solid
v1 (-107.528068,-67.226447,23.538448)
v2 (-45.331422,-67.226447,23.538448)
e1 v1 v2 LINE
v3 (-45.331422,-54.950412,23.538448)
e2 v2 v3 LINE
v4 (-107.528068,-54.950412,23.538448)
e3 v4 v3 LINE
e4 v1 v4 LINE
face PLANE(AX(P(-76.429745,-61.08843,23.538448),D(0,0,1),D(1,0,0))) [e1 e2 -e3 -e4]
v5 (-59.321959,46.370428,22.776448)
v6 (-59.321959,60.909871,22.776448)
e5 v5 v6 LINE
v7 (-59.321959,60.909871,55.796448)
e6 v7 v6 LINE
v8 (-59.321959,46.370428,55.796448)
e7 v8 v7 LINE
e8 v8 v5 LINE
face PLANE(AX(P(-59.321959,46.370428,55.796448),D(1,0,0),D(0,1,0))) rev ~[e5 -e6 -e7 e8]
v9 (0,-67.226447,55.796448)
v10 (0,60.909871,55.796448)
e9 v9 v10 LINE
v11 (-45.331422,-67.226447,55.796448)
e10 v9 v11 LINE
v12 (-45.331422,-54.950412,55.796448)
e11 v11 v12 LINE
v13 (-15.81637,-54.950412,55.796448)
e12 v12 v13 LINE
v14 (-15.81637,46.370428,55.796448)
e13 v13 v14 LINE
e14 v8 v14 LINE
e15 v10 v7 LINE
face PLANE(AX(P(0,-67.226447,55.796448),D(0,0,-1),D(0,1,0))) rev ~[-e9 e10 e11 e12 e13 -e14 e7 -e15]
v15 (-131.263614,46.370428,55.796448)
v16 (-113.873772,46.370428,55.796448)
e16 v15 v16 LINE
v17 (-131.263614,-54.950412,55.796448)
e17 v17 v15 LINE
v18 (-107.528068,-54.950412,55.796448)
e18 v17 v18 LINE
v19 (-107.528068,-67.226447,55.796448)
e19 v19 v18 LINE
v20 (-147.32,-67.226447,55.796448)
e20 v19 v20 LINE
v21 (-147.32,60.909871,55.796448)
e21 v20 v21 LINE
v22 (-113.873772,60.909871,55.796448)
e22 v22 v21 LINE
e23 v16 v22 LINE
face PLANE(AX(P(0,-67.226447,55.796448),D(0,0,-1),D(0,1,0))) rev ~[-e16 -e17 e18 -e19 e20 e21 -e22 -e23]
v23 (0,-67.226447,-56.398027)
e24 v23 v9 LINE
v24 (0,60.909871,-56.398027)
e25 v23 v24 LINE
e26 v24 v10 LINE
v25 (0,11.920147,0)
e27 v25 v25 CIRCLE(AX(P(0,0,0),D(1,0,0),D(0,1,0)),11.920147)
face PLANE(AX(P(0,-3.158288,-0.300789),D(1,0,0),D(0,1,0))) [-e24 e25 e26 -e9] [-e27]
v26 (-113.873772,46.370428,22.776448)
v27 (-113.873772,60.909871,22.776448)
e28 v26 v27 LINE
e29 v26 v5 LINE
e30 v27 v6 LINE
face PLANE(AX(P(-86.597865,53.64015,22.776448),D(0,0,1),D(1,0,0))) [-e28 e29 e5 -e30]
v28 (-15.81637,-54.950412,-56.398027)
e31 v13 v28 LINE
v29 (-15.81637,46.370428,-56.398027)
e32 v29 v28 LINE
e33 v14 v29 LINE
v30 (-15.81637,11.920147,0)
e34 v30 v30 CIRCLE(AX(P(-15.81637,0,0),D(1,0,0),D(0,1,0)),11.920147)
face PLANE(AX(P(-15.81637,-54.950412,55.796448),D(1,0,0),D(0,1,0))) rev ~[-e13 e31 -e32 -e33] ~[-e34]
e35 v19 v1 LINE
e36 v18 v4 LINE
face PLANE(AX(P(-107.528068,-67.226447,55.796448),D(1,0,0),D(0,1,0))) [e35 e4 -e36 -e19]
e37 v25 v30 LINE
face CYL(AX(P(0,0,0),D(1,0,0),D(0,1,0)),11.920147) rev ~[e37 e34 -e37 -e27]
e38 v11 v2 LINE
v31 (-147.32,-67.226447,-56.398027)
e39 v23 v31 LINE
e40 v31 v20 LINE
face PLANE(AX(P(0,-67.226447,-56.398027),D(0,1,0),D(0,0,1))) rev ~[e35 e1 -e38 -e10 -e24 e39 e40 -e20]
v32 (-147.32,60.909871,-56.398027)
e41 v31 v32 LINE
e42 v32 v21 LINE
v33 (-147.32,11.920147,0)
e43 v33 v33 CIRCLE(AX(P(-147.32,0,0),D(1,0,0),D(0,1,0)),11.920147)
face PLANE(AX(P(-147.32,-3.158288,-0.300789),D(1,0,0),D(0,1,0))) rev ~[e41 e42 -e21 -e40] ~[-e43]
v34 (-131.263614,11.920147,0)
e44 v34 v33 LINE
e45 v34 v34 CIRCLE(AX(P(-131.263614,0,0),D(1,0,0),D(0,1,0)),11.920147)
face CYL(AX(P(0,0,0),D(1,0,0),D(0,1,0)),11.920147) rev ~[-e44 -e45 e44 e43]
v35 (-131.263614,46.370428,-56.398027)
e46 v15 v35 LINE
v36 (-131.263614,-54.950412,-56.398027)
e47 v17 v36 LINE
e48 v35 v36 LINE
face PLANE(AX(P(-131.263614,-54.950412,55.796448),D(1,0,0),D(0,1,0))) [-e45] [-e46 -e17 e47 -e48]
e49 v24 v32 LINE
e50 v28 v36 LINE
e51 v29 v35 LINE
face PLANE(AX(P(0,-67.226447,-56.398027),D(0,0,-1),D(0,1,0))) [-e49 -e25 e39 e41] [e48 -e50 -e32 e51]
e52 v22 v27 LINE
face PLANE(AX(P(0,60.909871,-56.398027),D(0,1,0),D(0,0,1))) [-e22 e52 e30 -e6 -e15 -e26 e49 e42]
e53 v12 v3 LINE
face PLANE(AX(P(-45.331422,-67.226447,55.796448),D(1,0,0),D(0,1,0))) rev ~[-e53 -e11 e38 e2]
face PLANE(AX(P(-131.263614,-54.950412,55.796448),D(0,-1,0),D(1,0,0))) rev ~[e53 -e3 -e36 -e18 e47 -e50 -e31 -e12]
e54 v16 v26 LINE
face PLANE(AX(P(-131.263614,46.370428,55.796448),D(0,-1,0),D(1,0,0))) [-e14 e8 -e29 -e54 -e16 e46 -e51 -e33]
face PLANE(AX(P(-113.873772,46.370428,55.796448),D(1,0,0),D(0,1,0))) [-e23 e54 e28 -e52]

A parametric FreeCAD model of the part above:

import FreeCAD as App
import Part
import Sketcher
from FreeCAD import Vector
Q = App.Units.Quantity


def add_polygon(sketch, points):
    """Adds a closed chain of lines whose ends are joined by coincident constraints."""
    first, n = sketch.GeometryCount, len(points)
    for a, b in zip(points, points[1:] + points[:1]):
        sketch.addGeometry(Part.LineSegment(App.Vector(*a, 0), App.Vector(*b, 0)), False)
    for i in range(n):
        sketch.addConstraint(Sketcher.Constraint("Coincident", first + i, 2, first + (i + 1) % n, 1))

doc = App.newDocument("Part")
body = doc.addObject("PartDesign::Body", "Body")

# Sketch on YZ plane
sketch1 = body.newObject("Sketcher::SketchObject", "Sketch")
sketch1.AttachmentSupport = (doc.getObject("YZ_Plane"), [""])
sketch1.MapMode = "FlatFace"
add_polygon(sketch1, [(-67, 56), (-67, -56), (61, -56), (61, 56)])  # lines 0-3
sketch1.addGeometry(Part.Circle(Vector(0, 0, 0), Vector(0, 0, 1), 12), False)  # 4
sketch1.addConstraint([
    Sketcher.Constraint("Vertical", 0),
    Sketcher.Constraint("Horizontal", 1),
    Sketcher.Constraint("Vertical", 2),
    Sketcher.Constraint("Horizontal", 3),
    Sketcher.Constraint("Coincident", 4, 3, -1, 1),
    Sketcher.Constraint("Diameter", 4, 23.840293),
    Sketcher.Constraint("DistanceX", 1, 1, 1, 2, 128.136318),
    Sketcher.Constraint("DistanceY", 0, 2, 0, 1, 112.194475),
    Sketcher.Constraint("DistanceX", -1, 1, 1, 2, 60.909871),
    Sketcher.Constraint("DistanceY", -1, 1, 2, 2, 55.796448),
])
pad1 = body.newObject("PartDesign::Pad", "Pad")
pad1.Profile = sketch1
pad1.Length = Q("5.8 in")
pad1.Reversed = True

# Sketch on XY plane
sketch2 = body.newObject("Sketcher::SketchObject", "Sketch001")
sketch2.AttachmentSupport = (doc.getObject("XY_Plane"), [""])
sketch2.MapMode = "FlatFace"
sketch2.AttachmentOffset = App.Placement(Vector(0, 0, 55.796448), App.Rotation())
add_polygon(sketch2, [(-131, 46), (-131, -55), (-16, -55), (-16, 46)])  # lines 0-3
sketch2.addConstraint([
    Sketcher.Constraint("Vertical", 0),
    Sketcher.Constraint("Horizontal", 1),
    Sketcher.Constraint("Vertical", 2),
    Sketcher.Constraint("Horizontal", 3),
    Sketcher.Constraint("DistanceY", 0, 2, 0, 1, 101.32084),
    Sketcher.Constraint("DistanceX", 1, 1, 1, 2, 115.447244),
    Sketcher.Constraint("DistanceX", 1, 2, -1, 1, 15.81637),
    Sketcher.Constraint("DistanceY", -1, 1, 2, 2, 46.370428),
])
pocket1 = body.newObject("PartDesign::Pocket", "Pocket")
pocket1.Profile = sketch2
pocket1.Type = "ThroughAll"

# Sketch on XY plane
sketch3 = body.newObject("Sketcher::SketchObject", "Sketch002")
sketch3.AttachmentSupport = (doc.getObject("XY_Plane"), [""])
sketch3.MapMode = "FlatFace"
sketch3.AttachmentOffset = App.Placement(Vector(0, 0, 55.796448), App.Rotation())
add_polygon(sketch3, [(-108, -55), (-108, -67), (-45, -67), (-45, -55)])  # lines 0-3
sketch3.addConstraint([
    Sketcher.Constraint("Vertical", 0),
    Sketcher.Constraint("Horizontal", 1),
    Sketcher.Constraint("Vertical", 2),
    Sketcher.Constraint("Horizontal", 3),
    Sketcher.Constraint("DistanceX", 1, 1, 1, 2, 62.196646),
    Sketcher.Constraint("DistanceY", 0, 2, 0, 1, 12.276035),
    Sketcher.Constraint("DistanceX", 0, 2, -1, 1, 107.528068),
    Sketcher.Constraint("DistanceY", 0, 2, -1, 1, 67.226447),
])
pocket2 = body.newObject("PartDesign::Pocket", "Pocket001")
pocket2.Profile = sketch3
pocket2.Length = Q("1.27 in")

# Sketch on XY plane
sketch4 = body.newObject("Sketcher::SketchObject", "Sketch003")
sketch4.AttachmentSupport = (doc.getObject("XY_Plane"), [""])
sketch4.MapMode = "FlatFace"
sketch4.AttachmentOffset = App.Placement(Vector(0, 0, 55.796448), App.Rotation())
add_polygon(sketch4, [(-114, 61), (-114, 46), (-59, 46), (-59, 61)])  # lines 0-3
sketch4.addConstraint([
    Sketcher.Constraint("Vertical", 0),
    Sketcher.Constraint("Horizontal", 1),
    Sketcher.Constraint("Vertical", 2),
    Sketcher.Constraint("Horizontal", 3),
    Sketcher.Constraint("DistanceX", 1, 1, 1, 2, 54.551814),
    Sketcher.Constraint("DistanceY", 0, 2, 0, 1, 14.539443),
    Sketcher.Constraint("DistanceY", -1, 1, 0, 2, 46.370428),
    Sketcher.Constraint("DistanceX", 1, 2, -1, 1, 59.321959),
])
pocket3 = body.newObject("PartDesign::Pocket", "Pocket002")
pocket3.Profile = sketch4
pocket3.Length = Q("1.3 in")

doc.recompute()
